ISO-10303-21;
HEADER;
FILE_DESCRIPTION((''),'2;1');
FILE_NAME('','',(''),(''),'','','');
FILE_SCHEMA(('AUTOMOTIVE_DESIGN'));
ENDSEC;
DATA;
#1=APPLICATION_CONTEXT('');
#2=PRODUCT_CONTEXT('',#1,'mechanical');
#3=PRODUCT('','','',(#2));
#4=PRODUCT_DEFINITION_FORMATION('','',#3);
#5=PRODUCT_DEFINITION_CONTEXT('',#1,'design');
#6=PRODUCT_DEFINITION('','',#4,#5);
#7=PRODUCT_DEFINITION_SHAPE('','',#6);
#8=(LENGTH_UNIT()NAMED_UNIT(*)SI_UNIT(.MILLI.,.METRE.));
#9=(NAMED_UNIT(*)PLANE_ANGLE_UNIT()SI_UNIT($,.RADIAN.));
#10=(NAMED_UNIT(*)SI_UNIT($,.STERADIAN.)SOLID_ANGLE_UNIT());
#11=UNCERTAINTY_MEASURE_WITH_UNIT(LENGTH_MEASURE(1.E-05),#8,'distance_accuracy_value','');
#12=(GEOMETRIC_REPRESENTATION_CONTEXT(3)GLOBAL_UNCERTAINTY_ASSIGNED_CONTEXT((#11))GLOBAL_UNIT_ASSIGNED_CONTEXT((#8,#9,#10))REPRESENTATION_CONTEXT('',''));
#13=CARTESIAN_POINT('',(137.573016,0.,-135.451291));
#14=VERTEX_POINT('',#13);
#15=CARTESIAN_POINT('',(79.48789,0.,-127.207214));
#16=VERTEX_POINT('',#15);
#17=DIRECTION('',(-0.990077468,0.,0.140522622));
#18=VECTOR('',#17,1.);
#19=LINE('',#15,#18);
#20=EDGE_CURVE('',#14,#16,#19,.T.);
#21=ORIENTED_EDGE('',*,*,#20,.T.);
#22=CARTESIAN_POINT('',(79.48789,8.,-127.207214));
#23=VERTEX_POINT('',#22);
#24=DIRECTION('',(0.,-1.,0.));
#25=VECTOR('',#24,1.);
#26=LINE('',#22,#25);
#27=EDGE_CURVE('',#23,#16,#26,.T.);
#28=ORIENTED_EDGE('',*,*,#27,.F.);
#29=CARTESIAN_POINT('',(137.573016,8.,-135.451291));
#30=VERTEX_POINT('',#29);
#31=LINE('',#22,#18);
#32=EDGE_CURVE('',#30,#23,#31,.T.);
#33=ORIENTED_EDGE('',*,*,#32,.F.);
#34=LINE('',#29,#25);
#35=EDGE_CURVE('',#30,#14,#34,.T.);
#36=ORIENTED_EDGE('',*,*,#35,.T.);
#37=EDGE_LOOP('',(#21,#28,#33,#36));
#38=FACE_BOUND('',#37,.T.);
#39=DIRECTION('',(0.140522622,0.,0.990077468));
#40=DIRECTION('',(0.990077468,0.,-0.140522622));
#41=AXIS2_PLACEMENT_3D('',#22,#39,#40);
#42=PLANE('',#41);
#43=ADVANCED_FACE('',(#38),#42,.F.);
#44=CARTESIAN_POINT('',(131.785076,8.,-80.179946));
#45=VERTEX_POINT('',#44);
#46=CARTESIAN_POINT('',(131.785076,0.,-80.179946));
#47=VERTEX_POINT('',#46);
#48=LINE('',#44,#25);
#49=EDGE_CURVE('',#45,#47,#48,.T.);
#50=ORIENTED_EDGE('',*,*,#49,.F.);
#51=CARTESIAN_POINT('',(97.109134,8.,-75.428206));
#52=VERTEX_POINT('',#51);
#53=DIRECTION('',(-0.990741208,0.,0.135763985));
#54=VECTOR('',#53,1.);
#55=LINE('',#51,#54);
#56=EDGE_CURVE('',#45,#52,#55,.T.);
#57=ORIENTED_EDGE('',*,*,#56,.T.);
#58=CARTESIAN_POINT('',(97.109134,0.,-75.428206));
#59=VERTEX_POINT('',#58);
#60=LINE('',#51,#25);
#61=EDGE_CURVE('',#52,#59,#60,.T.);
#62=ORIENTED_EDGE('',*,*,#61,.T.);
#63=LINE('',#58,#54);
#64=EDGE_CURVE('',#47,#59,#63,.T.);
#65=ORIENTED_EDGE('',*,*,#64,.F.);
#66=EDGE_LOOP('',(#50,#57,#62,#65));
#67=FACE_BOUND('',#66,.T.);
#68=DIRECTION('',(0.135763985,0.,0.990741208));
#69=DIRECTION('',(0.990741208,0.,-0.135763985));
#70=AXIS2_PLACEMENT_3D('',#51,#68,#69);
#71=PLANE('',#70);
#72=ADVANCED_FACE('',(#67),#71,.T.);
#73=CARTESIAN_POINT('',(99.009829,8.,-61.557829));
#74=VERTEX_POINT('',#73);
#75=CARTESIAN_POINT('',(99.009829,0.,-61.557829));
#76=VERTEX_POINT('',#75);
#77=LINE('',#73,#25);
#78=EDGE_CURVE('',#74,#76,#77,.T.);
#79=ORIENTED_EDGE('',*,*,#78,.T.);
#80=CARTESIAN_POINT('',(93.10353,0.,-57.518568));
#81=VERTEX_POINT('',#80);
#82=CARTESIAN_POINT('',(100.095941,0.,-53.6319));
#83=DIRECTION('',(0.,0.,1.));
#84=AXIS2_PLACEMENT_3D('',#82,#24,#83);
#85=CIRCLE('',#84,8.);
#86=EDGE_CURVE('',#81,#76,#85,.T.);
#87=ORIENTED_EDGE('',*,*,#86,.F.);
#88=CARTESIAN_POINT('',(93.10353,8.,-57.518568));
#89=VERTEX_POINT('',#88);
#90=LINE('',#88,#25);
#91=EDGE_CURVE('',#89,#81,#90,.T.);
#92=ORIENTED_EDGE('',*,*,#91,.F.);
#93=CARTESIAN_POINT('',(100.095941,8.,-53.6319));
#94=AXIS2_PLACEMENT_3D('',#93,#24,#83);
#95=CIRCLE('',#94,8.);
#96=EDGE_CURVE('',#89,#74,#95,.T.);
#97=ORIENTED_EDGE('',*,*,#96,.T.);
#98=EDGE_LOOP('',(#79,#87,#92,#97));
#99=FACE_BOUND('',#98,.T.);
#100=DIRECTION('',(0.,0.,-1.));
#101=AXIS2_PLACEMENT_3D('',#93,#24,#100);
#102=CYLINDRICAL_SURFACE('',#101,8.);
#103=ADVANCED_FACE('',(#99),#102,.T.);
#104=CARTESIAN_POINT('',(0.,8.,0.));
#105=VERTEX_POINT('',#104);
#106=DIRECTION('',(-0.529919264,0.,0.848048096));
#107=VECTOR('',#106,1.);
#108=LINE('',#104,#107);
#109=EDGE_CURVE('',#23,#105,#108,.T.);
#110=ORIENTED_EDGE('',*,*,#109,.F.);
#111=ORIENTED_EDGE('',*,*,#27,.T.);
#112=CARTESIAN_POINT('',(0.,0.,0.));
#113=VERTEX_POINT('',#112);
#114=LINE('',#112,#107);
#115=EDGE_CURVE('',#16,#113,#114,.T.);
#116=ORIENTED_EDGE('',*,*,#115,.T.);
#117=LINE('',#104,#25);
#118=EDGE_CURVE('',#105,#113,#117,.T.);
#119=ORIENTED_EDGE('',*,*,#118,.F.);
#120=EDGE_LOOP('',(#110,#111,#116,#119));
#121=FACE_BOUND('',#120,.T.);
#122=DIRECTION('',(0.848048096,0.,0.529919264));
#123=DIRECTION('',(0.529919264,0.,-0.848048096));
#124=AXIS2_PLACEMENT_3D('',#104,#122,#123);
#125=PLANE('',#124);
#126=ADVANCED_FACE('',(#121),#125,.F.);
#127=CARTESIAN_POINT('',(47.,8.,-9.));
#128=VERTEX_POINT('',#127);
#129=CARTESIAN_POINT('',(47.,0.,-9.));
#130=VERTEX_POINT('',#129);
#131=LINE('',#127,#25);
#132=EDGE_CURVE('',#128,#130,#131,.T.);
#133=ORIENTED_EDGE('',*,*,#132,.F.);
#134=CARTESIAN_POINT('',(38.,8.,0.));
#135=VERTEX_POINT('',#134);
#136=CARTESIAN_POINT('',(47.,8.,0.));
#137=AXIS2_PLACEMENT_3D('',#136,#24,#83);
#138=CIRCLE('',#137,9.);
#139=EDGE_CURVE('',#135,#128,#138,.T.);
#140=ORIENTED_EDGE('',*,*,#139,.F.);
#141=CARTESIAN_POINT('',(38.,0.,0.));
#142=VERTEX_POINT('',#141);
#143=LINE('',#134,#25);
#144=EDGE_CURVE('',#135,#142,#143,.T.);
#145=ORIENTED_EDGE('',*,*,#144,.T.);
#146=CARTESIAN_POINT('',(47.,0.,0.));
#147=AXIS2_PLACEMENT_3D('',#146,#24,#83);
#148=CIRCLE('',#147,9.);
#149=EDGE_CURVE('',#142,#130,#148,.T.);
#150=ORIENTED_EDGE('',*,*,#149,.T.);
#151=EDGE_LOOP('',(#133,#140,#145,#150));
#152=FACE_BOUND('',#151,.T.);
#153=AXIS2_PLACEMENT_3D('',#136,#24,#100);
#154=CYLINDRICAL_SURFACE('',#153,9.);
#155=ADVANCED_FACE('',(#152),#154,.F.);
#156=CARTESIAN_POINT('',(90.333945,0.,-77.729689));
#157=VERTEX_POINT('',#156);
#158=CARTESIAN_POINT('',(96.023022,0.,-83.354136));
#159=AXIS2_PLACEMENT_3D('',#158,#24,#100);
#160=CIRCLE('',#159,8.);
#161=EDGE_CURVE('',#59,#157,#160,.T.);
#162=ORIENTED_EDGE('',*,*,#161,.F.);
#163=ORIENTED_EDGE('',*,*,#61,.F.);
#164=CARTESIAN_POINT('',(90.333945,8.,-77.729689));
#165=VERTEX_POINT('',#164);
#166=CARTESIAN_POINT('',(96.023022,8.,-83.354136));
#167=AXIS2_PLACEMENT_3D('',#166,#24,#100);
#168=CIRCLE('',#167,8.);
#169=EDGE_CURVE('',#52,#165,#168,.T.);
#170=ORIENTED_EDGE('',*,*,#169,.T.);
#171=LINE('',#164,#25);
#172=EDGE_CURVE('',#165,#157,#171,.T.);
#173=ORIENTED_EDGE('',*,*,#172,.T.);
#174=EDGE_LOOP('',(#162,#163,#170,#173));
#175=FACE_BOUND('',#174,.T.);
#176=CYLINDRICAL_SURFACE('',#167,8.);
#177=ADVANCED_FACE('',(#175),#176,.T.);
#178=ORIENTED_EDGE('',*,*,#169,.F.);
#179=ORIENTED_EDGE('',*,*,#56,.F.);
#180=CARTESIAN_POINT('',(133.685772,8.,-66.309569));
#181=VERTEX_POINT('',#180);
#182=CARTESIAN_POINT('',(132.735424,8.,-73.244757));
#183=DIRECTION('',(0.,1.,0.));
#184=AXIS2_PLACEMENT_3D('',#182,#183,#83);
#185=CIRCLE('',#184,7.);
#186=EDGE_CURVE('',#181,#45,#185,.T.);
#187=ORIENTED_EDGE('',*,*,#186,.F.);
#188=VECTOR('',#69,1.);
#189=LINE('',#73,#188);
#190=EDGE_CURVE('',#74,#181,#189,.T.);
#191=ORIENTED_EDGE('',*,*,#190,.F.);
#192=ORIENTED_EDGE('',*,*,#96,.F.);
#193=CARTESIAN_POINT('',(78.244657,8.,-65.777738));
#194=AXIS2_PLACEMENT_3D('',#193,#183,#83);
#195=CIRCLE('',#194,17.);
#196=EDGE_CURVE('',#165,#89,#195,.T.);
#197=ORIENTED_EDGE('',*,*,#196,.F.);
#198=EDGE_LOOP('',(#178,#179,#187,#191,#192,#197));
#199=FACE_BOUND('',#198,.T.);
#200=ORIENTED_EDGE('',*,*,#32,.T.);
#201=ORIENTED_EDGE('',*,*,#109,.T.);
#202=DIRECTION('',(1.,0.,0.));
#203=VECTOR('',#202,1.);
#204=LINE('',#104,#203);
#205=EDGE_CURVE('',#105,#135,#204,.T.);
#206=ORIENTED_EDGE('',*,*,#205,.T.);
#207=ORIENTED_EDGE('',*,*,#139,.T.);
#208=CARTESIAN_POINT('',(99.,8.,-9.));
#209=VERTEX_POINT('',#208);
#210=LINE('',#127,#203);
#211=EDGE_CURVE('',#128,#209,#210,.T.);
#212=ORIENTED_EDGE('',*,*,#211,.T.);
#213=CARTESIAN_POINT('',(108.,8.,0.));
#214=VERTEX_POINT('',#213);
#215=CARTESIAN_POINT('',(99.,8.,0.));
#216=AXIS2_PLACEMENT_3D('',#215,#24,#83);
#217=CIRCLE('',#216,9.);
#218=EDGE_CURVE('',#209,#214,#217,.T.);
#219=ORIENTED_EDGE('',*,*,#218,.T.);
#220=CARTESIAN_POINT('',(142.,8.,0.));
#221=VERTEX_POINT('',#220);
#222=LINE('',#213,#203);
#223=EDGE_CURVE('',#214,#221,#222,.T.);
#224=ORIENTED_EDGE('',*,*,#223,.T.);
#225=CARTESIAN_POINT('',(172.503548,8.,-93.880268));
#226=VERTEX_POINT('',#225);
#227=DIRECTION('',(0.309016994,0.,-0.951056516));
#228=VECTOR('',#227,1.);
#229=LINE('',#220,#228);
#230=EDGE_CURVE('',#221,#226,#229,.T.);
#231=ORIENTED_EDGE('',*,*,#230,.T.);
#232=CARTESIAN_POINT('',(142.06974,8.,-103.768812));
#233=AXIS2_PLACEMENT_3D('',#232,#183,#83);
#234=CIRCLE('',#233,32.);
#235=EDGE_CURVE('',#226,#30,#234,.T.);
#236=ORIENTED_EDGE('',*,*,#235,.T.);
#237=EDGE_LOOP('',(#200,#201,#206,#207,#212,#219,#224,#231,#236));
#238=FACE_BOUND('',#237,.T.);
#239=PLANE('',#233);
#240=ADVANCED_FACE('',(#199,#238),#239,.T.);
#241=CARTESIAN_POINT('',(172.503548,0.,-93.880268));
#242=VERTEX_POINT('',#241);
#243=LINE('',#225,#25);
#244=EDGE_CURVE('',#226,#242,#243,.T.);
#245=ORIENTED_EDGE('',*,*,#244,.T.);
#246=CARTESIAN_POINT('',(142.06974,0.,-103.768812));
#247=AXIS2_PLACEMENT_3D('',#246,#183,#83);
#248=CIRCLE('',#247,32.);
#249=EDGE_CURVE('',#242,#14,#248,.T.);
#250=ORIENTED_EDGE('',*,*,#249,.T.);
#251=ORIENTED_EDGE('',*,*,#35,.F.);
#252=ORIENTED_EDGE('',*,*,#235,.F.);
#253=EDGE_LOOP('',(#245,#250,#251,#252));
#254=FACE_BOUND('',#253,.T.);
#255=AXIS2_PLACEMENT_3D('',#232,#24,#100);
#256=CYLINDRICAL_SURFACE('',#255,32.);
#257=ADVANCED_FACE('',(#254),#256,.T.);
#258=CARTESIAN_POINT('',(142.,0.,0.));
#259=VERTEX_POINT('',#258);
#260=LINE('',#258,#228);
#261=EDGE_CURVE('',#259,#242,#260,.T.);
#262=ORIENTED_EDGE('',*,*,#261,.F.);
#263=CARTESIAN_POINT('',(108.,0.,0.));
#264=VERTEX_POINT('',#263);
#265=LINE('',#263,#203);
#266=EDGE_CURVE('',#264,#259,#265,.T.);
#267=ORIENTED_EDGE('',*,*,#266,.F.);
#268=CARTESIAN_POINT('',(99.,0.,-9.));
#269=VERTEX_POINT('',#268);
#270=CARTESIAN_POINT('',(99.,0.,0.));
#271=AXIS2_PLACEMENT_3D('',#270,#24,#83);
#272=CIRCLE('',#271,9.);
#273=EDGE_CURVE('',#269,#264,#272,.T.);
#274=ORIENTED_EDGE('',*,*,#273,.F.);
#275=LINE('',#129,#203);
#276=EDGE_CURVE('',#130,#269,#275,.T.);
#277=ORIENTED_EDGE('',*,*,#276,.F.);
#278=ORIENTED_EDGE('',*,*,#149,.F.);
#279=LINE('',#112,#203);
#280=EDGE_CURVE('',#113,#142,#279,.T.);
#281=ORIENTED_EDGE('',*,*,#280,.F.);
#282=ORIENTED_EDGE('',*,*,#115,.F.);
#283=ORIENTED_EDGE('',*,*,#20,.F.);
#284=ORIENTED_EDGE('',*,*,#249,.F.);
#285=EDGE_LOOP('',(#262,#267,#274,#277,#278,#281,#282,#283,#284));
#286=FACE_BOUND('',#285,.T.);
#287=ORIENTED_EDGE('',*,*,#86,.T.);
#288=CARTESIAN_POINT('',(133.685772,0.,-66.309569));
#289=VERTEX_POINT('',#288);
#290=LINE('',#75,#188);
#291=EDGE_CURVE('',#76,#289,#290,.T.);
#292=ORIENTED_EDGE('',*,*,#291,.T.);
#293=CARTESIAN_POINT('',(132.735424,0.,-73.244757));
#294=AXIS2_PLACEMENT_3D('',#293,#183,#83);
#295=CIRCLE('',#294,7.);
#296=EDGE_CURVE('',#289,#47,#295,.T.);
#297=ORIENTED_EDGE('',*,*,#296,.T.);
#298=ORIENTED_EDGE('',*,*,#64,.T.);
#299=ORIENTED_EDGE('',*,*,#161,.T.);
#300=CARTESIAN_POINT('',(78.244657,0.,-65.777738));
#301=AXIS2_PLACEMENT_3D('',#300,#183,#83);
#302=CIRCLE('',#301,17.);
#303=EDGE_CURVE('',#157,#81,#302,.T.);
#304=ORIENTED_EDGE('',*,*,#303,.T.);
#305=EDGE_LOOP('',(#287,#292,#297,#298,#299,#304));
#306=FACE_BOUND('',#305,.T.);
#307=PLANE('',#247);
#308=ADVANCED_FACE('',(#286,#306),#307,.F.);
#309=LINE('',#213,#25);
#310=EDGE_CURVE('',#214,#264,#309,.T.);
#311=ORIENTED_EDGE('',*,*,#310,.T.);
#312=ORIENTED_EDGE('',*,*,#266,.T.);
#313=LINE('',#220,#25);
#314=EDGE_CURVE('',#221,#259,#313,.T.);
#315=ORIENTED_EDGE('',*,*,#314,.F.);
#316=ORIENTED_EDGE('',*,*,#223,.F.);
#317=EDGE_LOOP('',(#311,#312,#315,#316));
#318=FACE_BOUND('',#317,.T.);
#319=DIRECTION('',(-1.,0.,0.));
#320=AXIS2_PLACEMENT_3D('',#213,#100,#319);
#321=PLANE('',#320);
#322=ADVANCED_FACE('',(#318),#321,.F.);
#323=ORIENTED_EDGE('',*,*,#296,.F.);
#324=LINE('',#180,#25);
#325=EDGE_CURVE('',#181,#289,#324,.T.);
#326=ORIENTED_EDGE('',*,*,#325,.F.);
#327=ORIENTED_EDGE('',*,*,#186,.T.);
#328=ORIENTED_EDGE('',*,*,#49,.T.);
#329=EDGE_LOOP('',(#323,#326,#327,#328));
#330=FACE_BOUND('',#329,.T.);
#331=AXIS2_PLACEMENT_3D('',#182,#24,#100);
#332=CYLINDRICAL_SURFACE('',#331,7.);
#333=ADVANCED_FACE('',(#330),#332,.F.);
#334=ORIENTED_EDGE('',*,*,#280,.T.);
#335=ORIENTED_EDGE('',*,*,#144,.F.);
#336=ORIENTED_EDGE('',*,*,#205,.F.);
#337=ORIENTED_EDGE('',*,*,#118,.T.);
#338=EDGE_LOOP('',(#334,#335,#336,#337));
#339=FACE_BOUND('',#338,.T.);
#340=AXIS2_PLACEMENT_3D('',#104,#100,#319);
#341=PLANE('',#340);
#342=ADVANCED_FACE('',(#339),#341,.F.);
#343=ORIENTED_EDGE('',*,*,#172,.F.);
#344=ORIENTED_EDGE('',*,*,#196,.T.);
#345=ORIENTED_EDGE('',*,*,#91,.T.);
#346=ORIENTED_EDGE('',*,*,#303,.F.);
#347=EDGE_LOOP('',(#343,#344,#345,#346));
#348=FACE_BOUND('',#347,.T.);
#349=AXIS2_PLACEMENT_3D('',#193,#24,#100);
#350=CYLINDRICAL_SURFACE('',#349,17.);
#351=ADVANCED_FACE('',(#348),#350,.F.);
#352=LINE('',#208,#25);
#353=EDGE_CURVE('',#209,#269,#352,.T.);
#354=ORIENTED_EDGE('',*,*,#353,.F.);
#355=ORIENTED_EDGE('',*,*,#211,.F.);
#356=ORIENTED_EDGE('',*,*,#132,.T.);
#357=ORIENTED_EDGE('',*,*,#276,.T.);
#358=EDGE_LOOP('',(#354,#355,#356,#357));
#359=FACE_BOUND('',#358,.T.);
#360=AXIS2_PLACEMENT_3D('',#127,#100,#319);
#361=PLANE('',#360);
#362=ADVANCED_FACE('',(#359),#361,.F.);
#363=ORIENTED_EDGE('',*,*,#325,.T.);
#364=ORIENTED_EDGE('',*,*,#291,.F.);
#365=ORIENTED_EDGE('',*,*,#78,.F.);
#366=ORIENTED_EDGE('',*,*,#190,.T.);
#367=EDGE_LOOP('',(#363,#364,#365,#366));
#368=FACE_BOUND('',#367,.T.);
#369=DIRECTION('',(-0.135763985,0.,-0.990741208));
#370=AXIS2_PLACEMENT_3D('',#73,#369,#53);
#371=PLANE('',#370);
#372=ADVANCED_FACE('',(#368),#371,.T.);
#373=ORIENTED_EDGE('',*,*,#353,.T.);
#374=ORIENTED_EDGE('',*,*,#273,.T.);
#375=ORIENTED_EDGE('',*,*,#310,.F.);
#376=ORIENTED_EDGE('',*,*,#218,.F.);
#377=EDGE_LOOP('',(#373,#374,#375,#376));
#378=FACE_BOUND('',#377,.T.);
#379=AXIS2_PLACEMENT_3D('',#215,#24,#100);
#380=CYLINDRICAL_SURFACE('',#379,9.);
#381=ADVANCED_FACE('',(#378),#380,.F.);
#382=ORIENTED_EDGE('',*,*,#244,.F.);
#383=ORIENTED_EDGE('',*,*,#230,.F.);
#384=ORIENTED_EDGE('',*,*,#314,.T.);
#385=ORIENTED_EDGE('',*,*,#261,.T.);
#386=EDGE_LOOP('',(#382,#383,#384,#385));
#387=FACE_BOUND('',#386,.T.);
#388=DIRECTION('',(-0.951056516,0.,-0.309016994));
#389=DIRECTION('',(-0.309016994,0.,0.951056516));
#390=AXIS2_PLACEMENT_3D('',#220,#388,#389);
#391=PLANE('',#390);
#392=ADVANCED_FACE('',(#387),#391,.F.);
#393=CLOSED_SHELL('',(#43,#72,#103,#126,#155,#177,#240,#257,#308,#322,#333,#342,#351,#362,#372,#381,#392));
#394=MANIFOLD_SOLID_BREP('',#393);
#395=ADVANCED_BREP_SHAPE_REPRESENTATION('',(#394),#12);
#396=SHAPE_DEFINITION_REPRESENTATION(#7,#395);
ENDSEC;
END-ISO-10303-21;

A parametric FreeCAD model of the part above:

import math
import FreeCAD as App
import Part
import Sketcher
Q = App.Units.Quantity

doc = App.newDocument("Part")
params = doc.addObject("Spreadsheet::Sheet", "Params")
for row, (alias, value) in enumerate([
    ("sketch1_radius", "9 mm"),
    ("sketch1_radius2", "32 mm"),
    ("sketch1_radius3", "8 mm"),
    ("sketch1_radius4", "7 mm"),
    ("sketch1_radius5", "17 mm"),
    ("pad1_length", "8 mm"),
], start=1):
    params.set(f"A{row}", alias)
    params.set(f"B{row}", "=" + value)
    params.setAlias(f"B{row}", alias)

body = doc.addObject("PartDesign::Body", "Body")

# Sketch on XZ plane
sketch1 = doc.addObject("Sketcher::SketchObject", "Sketch")
body.addObject(sketch1)
sketch1.AttachmentSupport = (doc.XZ_Plane, [""])
sketch1.MapMode = "FlatFace"
sketch1.addGeometry(Part.LineSegment(App.Vector(0, 0, 0), App.Vector(38, 0, 0)), False)
sketch1.addGeometry(Part.ArcOfCircle(Part.Circle(App.Vector(47, 0, 0), App.Vector(0, 0, 1), 9), math.radians(180), math.radians(270)), False)
sketch1.addGeometry(Part.LineSegment(App.Vector(47, -9, 0), App.Vector(99, -9, 0)), False)
sketch1.addGeometry(Part.ArcOfCircle(Part.Circle(App.Vector(99, 0, 0), App.Vector(0, 0, 1), 9), math.radians(-90), math.radians(0)), False)
sketch1.addGeometry(Part.LineSegment(App.Vector(108, 0, 0), App.Vector(142, 0, 0)), False)
sketch1.addGeometry(Part.LineSegment(App.Vector(142, 0, 0), App.Vector(172.503548, -93.880268, 0)), False)
sketch1.addGeometry(Part.ArcOfCircle(Part.Circle(App.Vector(142.06974, -103.768812, 0), App.Vector(0, 0, 1), 32), math.radians(-98.078089), math.radians(18)), False)
sketch1.addGeometry(Part.LineSegment(App.Vector(137.573016, -135.451291, 0), App.Vector(79.48789, -127.207214, 0)), False)
sketch1.addGeometry(Part.LineSegment(App.Vector(79.48789, -127.207214, 0), App.Vector(0, 0, 0)), False)
sketch1.addGeometry(Part.ArcOfCircle(Part.Circle(App.Vector(96.023022, -83.354136, 0), App.Vector(0, 0, 1), 8), math.radians(82.1972), math.radians(135.327303)), False)
sketch1.addGeometry(Part.LineSegment(App.Vector(97.109134, -75.428206, 0), App.Vector(131.785076, -80.179946, 0)), False)
sketch1.addGeometry(Part.ArcOfCircle(Part.Circle(App.Vector(132.735424, -73.244757, 0), App.Vector(0, 0, 1), 7), math.radians(-97.8028), math.radians(82.1972)), False)
sketch1.addGeometry(Part.LineSegment(App.Vector(133.685772, -66.309569, 0), App.Vector(99.009829, -61.557829, 0)), False)
sketch1.addGeometry(Part.ArcOfCircle(Part.Circle(App.Vector(100.095941, -53.6319, 0), App.Vector(0, 0, 1), 8), math.radians(-150.932902), math.radians(-97.8028)), False)
sketch1.addGeometry(Part.ArcOfCircle(Part.Circle(App.Vector(78.244657, -65.777738, 0), App.Vector(0, 0, 1), 17), math.radians(29.067098), math.radians(315.327303)), False)
sketch1.addConstraint(Sketcher.Constraint("Coincident", 0, 2, 1, 1))
sketch1.addConstraint(Sketcher.Constraint("Tangent", 1, 2, 2, 1))
sketch1.addConstraint(Sketcher.Constraint("Tangent", 2, 2, 3, 1))
sketch1.addConstraint(Sketcher.Constraint("Coincident", 3, 2, 4, 1))
sketch1.addConstraint(Sketcher.Constraint("Coincident", 4, 2, 5, 1))
sketch1.addConstraint(Sketcher.Constraint("Tangent", 5, 2, 6, 2))
sketch1.addConstraint(Sketcher.Constraint("Tangent", 6, 1, 7, 1))
sketch1.addConstraint(Sketcher.Constraint("Coincident", 7, 2, 8, 1))
sketch1.addConstraint(Sketcher.Constraint("Coincident", 8, 2, 0, 1))
sketch1.addConstraint(Sketcher.Constraint("Tangent", 9, 1, 10, 1))
sketch1.addConstraint(Sketcher.Constraint("Tangent", 10, 2, 11, 1))
sketch1.addConstraint(Sketcher.Constraint("Tangent", 11, 2, 12, 1))
sketch1.addConstraint(Sketcher.Constraint("Tangent", 12, 2, 13, 2))
sketch1.addConstraint(Sketcher.Constraint("Tangent", 13, 1, 14, 1))
sketch1.addConstraint(Sketcher.Constraint("Tangent", 14, 2, 9, 2))
sketch1.addConstraint(Sketcher.Constraint("Horizontal", 0))
sketch1.addConstraint(Sketcher.Constraint("Horizontal", 2))
sketch1.addConstraint(Sketcher.Constraint("Horizontal", 4))
sketch1.addConstraint(Sketcher.Constraint("Coincident", 8, 2, -1, 1))
sketch1.addConstraint(Sketcher.Constraint("Equal", 1, 3))
sketch1.addConstraint(Sketcher.Constraint("Equal", 9, 13))
sketch1.addConstraint(Sketcher.Constraint("PointOnObject", 1, 3, -1))
sketch1.addConstraint(Sketcher.Constraint("PointOnObject", 3, 2, -1))
sketch1.addConstraint(Sketcher.Constraint("Parallel", 10, 12))
sketch1.addConstraint(Sketcher.Constraint("Equal", 10, 12))
sketch1.addConstraint(Sketcher.Constraint("Radius", 1, 9.0))
sketch1.addConstraint(Sketcher.Constraint("Radius", 6, 32.0))
sketch1.addConstraint(Sketcher.Constraint("Radius", 9, 8.0))
sketch1.addConstraint(Sketcher.Constraint("Radius", 11, 7.0))
sketch1.addConstraint(Sketcher.Constraint("Radius", 14, 17.0))
sketch1.addConstraint(Sketcher.Constraint("DistanceX", 0, 1, 0, 2, 38.0))
sketch1.addConstraint(Sketcher.Constraint("DistanceX", 2, 1, 2, 2, 52.0))
sketch1.addConstraint(Sketcher.Constraint("DistanceX", 4, 1, 4, 2, 34.0))
sketch1.addConstraint(Sketcher.Constraint("Angle", 5, Q("-72 deg")))
sketch1.addConstraint(Sketcher.Constraint("Angle", 8, Q("122 deg")))
sketch1.addConstraint(Sketcher.Constraint("Distance", 8, 150.0))
sketch1.addConstraint(Sketcher.Constraint("Distance", 10, 35.0))
sketch1.addConstraint(Sketcher.Constraint("DistanceY", 13, 3, -1, 1, 53.6319))
sketch1.addConstraint(Sketcher.Constraint("DistanceX", 13, 3, 6, 3, 41.973798))
sketch1.addConstraint(Sketcher.Constraint("DistanceX", 13, 1, 12, 2, 5.906299))
sketch1.addConstraint(Sketcher.Constraint("DistanceX", -1, 1, 6, 3, 142.06974))
sketch1.setExpression("Constraints[25]", "Params.sketch1_radius")
sketch1.setExpression("Constraints[26]", "Params.sketch1_radius2")
sketch1.setExpression("Constraints[27]", "Params.sketch1_radius3")
sketch1.setExpression("Constraints[28]", "Params.sketch1_radius4")
sketch1.setExpression("Constraints[29]", "Params.sketch1_radius5")
pad1 = doc.addObject("PartDesign::Pad", "Pad")
body.addObject(pad1)
pad1.Profile = sketch1
pad1.setExpression("Length", "Params.pad1_length")
pad1.Reversed = True

doc.recompute()
